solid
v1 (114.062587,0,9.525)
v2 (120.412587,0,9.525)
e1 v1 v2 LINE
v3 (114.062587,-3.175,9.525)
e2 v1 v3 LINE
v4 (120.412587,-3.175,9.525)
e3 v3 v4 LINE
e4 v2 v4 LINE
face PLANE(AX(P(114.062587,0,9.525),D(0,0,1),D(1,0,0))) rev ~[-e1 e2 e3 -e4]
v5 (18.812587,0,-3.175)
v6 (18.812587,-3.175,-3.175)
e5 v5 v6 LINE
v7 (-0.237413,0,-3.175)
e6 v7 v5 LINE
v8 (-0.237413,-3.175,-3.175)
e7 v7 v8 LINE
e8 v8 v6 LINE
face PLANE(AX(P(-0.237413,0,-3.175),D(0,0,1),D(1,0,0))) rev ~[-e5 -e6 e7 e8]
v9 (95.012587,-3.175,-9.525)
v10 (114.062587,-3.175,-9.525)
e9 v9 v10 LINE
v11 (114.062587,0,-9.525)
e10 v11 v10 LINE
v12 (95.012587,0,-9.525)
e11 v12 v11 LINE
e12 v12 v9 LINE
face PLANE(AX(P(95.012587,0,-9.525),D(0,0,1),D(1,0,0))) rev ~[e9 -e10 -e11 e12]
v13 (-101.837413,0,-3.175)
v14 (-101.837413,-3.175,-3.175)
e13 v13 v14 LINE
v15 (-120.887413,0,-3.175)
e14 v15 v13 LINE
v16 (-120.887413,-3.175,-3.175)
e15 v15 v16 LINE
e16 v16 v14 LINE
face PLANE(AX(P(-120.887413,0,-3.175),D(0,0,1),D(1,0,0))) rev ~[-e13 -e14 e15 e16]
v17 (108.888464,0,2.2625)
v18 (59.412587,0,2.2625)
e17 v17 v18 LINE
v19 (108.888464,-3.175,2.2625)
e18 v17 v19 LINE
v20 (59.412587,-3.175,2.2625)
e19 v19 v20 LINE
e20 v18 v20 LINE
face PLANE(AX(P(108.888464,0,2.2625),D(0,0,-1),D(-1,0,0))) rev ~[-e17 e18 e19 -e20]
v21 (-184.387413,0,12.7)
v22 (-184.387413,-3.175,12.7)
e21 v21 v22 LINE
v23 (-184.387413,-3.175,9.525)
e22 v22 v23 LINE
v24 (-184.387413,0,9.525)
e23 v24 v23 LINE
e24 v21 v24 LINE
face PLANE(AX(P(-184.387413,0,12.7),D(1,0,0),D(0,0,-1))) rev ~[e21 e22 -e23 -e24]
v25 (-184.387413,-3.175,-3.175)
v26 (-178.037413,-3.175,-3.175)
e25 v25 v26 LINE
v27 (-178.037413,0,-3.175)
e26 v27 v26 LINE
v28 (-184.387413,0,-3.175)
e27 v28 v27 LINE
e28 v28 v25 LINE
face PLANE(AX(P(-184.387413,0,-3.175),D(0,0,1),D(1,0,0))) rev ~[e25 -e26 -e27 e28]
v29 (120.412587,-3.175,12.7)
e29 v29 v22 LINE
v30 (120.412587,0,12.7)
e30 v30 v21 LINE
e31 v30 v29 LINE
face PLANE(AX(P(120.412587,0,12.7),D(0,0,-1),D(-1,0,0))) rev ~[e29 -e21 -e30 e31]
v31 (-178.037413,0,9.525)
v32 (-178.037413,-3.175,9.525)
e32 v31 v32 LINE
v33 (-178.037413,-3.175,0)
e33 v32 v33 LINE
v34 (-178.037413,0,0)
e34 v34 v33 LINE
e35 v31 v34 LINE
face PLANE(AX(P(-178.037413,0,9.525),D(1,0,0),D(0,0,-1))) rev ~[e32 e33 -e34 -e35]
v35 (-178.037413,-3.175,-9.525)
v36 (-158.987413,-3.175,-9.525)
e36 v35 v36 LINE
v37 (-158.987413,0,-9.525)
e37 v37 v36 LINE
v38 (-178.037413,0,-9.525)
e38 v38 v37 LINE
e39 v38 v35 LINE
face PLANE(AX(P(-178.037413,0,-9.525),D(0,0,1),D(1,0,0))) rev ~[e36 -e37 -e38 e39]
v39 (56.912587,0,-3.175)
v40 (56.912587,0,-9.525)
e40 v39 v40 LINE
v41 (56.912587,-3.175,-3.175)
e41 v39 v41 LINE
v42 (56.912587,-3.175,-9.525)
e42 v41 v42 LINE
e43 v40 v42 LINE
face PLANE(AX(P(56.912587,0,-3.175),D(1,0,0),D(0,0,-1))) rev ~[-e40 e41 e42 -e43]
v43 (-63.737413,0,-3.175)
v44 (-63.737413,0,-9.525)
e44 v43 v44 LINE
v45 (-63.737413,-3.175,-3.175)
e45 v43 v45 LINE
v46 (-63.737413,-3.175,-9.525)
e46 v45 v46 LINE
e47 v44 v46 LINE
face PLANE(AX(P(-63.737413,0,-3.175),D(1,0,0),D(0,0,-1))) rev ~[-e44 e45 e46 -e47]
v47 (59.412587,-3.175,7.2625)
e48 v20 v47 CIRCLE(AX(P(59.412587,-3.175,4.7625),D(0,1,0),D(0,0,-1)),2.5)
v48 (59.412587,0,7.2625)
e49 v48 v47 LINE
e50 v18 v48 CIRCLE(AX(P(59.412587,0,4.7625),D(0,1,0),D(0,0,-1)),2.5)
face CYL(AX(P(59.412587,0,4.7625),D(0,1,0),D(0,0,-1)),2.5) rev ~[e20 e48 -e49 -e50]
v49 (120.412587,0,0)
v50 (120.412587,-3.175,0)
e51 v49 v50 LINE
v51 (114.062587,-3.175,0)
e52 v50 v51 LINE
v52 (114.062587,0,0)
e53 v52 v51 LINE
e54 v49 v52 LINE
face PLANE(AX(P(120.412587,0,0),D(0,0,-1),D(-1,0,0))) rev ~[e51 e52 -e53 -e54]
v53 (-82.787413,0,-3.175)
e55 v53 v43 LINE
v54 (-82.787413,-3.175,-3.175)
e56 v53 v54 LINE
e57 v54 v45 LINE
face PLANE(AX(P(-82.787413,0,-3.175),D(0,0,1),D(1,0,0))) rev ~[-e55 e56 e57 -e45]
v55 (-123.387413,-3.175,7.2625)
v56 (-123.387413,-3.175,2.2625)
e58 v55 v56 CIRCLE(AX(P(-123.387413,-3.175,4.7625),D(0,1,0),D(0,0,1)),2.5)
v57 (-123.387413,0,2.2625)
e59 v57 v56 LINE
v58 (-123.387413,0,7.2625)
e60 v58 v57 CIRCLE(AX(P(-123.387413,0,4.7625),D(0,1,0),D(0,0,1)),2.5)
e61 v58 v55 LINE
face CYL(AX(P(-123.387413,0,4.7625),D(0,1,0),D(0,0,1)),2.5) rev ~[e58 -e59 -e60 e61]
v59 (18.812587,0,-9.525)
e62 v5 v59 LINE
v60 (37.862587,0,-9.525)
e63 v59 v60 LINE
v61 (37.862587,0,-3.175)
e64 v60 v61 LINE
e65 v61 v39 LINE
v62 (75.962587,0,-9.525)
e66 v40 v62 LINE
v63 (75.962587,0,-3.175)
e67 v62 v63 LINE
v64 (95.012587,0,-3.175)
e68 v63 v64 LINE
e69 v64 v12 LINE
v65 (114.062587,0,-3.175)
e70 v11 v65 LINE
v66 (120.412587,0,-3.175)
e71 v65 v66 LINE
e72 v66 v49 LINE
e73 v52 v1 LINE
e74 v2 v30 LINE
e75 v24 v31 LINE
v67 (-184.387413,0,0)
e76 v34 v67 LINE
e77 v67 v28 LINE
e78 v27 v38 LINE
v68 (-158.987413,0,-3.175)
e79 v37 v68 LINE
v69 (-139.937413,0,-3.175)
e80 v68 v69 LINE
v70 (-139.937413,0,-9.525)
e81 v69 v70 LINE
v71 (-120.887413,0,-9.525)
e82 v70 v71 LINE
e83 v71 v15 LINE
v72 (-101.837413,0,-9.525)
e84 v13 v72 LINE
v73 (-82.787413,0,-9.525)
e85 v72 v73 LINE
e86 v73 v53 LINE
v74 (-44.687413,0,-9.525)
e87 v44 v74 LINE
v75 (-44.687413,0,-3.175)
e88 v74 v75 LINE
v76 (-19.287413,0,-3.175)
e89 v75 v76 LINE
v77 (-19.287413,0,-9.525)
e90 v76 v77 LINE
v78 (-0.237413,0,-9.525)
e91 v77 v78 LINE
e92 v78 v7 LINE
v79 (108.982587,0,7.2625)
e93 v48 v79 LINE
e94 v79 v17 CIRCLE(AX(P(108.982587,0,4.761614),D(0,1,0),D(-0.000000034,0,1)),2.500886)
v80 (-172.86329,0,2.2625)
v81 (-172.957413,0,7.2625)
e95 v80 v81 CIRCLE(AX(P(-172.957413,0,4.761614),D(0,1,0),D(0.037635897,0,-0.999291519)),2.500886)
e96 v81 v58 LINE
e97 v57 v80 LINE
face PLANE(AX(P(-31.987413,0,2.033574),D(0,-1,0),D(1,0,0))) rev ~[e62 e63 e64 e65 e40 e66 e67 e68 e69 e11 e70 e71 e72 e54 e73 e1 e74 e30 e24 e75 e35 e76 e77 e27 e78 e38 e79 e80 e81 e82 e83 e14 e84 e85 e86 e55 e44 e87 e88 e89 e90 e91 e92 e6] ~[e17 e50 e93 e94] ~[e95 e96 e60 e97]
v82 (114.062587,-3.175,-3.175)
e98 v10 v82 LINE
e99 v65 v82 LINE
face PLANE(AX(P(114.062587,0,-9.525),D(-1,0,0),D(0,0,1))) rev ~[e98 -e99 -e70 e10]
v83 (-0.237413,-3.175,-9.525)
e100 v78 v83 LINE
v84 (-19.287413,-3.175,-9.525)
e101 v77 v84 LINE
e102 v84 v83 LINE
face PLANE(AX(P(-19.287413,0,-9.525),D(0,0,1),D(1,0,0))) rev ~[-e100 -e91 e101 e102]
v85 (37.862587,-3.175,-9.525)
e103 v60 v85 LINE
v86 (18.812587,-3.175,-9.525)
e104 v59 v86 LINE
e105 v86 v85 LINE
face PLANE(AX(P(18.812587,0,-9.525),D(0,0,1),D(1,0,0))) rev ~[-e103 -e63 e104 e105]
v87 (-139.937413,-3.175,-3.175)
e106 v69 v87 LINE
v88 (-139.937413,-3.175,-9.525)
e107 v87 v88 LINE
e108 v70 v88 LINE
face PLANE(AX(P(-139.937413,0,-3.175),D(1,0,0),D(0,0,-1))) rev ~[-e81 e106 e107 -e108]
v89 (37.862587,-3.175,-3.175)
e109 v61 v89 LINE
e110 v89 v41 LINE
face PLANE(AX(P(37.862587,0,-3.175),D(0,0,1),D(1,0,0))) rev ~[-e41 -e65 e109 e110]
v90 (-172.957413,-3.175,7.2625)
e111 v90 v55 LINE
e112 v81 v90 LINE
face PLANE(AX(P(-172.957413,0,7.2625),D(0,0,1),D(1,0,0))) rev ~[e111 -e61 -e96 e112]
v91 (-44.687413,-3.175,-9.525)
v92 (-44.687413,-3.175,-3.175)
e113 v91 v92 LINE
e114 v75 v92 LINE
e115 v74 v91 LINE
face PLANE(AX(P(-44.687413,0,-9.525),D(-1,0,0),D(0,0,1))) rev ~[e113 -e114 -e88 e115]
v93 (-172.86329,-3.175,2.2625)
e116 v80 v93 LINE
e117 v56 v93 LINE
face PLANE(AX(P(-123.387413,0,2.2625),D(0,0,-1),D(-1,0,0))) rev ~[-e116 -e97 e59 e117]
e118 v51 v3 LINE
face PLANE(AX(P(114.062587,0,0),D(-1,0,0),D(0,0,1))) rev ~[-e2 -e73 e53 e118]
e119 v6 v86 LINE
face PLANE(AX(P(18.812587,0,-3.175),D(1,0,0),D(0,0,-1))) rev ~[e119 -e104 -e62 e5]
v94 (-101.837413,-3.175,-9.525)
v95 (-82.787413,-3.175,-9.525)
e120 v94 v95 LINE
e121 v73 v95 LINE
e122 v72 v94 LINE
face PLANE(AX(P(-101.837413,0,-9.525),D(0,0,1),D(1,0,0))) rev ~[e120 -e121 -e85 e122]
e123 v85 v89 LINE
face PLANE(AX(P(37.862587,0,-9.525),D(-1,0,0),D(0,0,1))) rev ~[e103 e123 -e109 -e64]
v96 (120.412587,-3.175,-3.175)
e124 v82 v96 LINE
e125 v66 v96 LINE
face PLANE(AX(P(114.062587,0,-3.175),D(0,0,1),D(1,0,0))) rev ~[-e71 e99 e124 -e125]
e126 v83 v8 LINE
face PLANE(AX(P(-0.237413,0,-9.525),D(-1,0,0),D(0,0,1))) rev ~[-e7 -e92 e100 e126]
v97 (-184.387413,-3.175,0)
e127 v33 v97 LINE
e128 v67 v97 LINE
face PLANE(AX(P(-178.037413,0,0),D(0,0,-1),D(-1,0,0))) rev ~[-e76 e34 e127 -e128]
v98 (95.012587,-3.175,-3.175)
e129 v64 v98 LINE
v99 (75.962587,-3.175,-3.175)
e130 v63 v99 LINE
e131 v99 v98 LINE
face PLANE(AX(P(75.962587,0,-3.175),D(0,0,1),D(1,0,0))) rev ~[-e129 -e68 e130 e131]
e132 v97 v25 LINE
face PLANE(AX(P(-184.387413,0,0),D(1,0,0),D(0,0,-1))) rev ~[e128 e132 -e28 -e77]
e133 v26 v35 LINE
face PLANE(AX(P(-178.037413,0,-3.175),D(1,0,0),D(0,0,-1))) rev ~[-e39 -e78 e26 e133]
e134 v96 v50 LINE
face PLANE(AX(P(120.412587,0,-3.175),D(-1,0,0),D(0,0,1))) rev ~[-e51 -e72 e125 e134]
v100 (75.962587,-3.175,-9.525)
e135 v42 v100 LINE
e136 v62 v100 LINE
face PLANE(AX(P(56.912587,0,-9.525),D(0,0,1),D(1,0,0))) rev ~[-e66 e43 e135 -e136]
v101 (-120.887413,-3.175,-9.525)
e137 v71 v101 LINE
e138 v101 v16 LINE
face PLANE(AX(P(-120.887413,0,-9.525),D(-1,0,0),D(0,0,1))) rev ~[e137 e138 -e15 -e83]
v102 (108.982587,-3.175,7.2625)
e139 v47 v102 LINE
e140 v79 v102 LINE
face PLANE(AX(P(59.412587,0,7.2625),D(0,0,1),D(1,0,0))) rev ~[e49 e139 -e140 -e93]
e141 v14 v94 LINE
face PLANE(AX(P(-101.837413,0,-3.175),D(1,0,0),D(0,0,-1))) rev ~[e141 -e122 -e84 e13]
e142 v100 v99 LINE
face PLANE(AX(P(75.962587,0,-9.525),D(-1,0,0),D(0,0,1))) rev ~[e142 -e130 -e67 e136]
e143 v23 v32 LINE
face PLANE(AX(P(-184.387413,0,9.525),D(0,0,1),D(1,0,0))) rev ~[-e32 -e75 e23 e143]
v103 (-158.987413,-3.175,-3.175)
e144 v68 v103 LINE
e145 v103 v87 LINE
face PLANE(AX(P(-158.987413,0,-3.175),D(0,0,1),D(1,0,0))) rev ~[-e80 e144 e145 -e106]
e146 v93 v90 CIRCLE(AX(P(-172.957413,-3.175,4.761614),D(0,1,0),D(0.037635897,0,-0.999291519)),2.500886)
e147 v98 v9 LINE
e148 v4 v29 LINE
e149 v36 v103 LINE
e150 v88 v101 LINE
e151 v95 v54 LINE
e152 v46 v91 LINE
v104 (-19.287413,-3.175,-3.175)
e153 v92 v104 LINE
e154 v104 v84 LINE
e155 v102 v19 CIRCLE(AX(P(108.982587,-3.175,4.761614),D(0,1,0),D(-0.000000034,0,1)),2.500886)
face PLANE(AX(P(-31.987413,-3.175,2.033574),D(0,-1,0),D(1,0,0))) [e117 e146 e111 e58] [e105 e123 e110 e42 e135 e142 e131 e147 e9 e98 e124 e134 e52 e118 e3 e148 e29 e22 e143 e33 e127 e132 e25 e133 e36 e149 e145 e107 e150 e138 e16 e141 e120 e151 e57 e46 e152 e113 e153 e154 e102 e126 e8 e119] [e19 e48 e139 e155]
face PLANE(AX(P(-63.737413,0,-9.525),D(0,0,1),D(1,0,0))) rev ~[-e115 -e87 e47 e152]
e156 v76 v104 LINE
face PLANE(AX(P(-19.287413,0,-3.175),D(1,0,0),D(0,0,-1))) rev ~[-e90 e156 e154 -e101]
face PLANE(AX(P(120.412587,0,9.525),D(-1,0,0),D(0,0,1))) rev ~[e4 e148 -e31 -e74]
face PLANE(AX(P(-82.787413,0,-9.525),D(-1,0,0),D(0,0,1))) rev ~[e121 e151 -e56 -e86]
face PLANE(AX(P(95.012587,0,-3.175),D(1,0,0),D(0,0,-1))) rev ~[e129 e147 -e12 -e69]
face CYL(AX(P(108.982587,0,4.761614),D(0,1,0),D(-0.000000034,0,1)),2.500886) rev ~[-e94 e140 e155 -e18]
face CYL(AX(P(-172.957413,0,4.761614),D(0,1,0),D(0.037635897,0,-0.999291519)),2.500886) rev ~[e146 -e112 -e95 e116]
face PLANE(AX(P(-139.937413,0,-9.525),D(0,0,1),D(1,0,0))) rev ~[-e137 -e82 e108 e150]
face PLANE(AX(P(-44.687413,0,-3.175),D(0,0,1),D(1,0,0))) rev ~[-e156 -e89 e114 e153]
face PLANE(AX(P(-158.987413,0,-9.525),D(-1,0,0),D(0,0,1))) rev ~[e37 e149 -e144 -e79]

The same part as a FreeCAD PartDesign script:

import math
import FreeCAD as App
import Part
import Sketcher
Q = App.Units.Quantity


def add_polygon(sketch, points):
    """Adds a closed chain of lines whose ends are joined by coincident constraints."""
    first, n = sketch.GeometryCount, len(points)
    for a, b in zip(points, points[1:] + points[:1]):
        sketch.addGeometry(Part.LineSegment(App.Vector(*a, 0), App.Vector(*b, 0)), False)
    for i in range(n):
        sketch.addConstraint(Sketcher.Constraint("Coincident", first + i, 2, first + (i + 1) % n, 1))

doc = App.newDocument("Part")
body = doc.addObject("PartDesign::Body", "Body")

# Sketch on XZ plane
sketch1 = body.newObject("Sketcher::SketchObject", "Sketch")
sketch1.AttachmentSupport = (doc.getObject("XZ_Plane"), [""])
sketch1.MapMode = "FlatFace"
add_polygon(sketch1, [(-184.4, 12.7), (-184.4, 9.5), (-178, 9.5), (-178, 0), (-184.4, 0), (-184.4, -3.2), (-178, -3.2), (-178, -9.5), (-159, -9.5), (-159, -3.2), (-139.9, -3.2), (-139.9, -9.5), (-120.9, -9.5), (-120.9, -3.2), (-101.8, -3.2), (-101.8, -9.5), (-82.8, -9.5), (-82.8, -3.2), (-63.7, -3.2), (-63.7, -9.5), (-44.7, -9.5), (-44.7, -3.2), (-19.3, -3.2), (-19.3, -9.5), (-0.2, -9.5), (-0.2, -3.2), (18.8, -3.2), (18.8, -9.5), (37.9, -9.5), (37.9, -3.2), (56.9, -3.2), (56.9, -9.5), (76, -9.5), (76, -3.2), (95, -3.2), (95, -9.5), (114.1, -9.5), (114.1, -3.2), (120.4, -3.2), (120.4, 0), (114.1, 0), (114.1, 9.5), (120.4, 9.5), (120.4, 12.7)])  # lines 0-43
sketch1.addGeometry(Part.LineSegment(App.Vector(108.9, 2.3, 0), App.Vector(59.4, 2.3, 0)), False)  # 44
sketch1.addGeometry(Part.ArcOfCircle(Part.Circle(App.Vector(59.4, 4.8, 0), App.Vector(0, 0, 1), 2.5), math.radians(90), math.radians(270)), False)  # 45
sketch1.addGeometry(Part.LineSegment(App.Vector(59.4, 7.3, 0), App.Vector(109, 7.3, 0)), False)  # 46
sketch1.addGeometry(Part.ArcOfCircle(Part.Circle(App.Vector(109, 4.8, 0), App.Vector(0, 0, 1), 2.5), math.radians(-92), math.radians(90)), False)  # 47
sketch1.addGeometry(Part.ArcOfCircle(Part.Circle(App.Vector(-173, 4.8, 0), App.Vector(0, 0, 1), 2.5), math.radians(90), math.radians(272)), False)  # 48
sketch1.addGeometry(Part.LineSegment(App.Vector(-173, 7.3, 0), App.Vector(-123.4, 7.3, 0)), False)  # 49
sketch1.addGeometry(Part.ArcOfCircle(Part.Circle(App.Vector(-123.4, 4.8, 0), App.Vector(0, 0, 1), 2.5), math.radians(-90), math.radians(90)), False)  # 50
sketch1.addGeometry(Part.LineSegment(App.Vector(-123.4, 2.3, 0), App.Vector(-172.9, 2.3, 0)), False)  # 51
sketch1.addConstraint(Sketcher.Constraint("Tangent", 44, 2, 45, 2))
sketch1.addConstraint(Sketcher.Constraint("Tangent", 45, 1, 46, 1))
sketch1.addConstraint(Sketcher.Constraint("Tangent", 46, 2, 47, 2))
sketch1.addConstraint(Sketcher.Constraint("Coincident", 47, 1, 44, 1))
sketch1.addConstraint(Sketcher.Constraint("Tangent", 48, 1, 49, 1))
sketch1.addConstraint(Sketcher.Constraint("Tangent", 49, 2, 50, 2))
sketch1.addConstraint(Sketcher.Constraint("Tangent", 50, 1, 51, 1))
sketch1.addConstraint(Sketcher.Constraint("Coincident", 51, 2, 48, 2))
sketch1.addConstraint(Sketcher.Constraint("Vertical", 0))
sketch1.addConstraint(Sketcher.Constraint("Horizontal", 1))
sketch1.addConstraint(Sketcher.Constraint("Vertical", 2))
sketch1.addConstraint(Sketcher.Constraint("Horizontal", 3))
sketch1.addConstraint(Sketcher.Constraint("Vertical", 4))
sketch1.addConstraint(Sketcher.Constraint("Horizontal", 5))
sketch1.addConstraint(Sketcher.Constraint("Vertical", 6))
sketch1.addConstraint(Sketcher.Constraint("Horizontal", 7))
sketch1.addConstraint(Sketcher.Constraint("Vertical", 8))
sketch1.addConstraint(Sketcher.Constraint("Horizontal", 9))
sketch1.addConstraint(Sketcher.Constraint("Vertical", 10))
sketch1.addConstraint(Sketcher.Constraint("Horizontal", 11))
sketch1.addConstraint(Sketcher.Constraint("Vertical", 12))
sketch1.addConstraint(Sketcher.Constraint("Horizontal", 13))
sketch1.addConstraint(Sketcher.Constraint("Vertical", 14))
sketch1.addConstraint(Sketcher.Constraint("Horizontal", 15))
sketch1.addConstraint(Sketcher.Constraint("Vertical", 16))
sketch1.addConstraint(Sketcher.Constraint("Horizontal", 17))
sketch1.addConstraint(Sketcher.Constraint("Vertical", 18))
sketch1.addConstraint(Sketcher.Constraint("Horizontal", 19))
sketch1.addConstraint(Sketcher.Constraint("Vertical", 20))
sketch1.addConstraint(Sketcher.Constraint("Horizontal", 21))
sketch1.addConstraint(Sketcher.Constraint("Vertical", 22))
sketch1.addConstraint(Sketcher.Constraint("Horizontal", 23))
sketch1.addConstraint(Sketcher.Constraint("Vertical", 24))
sketch1.addConstraint(Sketcher.Constraint("Horizontal", 25))
sketch1.addConstraint(Sketcher.Constraint("Vertical", 26))
sketch1.addConstraint(Sketcher.Constraint("Horizontal", 27))
sketch1.addConstraint(Sketcher.Constraint("Vertical", 28))
sketch1.addConstraint(Sketcher.Constraint("Horizontal", 29))
sketch1.addConstraint(Sketcher.Constraint("Vertical", 30))
sketch1.addConstraint(Sketcher.Constraint("Horizontal", 31))
sketch1.addConstraint(Sketcher.Constraint("Vertical", 32))
sketch1.addConstraint(Sketcher.Constraint("Horizontal", 33))
sketch1.addConstraint(Sketcher.Constraint("Vertical", 34))
sketch1.addConstraint(Sketcher.Constraint("Horizontal", 35))
sketch1.addConstraint(Sketcher.Constraint("Vertical", 36))
sketch1.addConstraint(Sketcher.Constraint("Horizontal", 37))
sketch1.addConstraint(Sketcher.Constraint("Vertical", 38))
sketch1.addConstraint(Sketcher.Constraint("Horizontal", 39))
sketch1.addConstraint(Sketcher.Constraint("Vertical", 40))
sketch1.addConstraint(Sketcher.Constraint("Horizontal", 41))
sketch1.addConstraint(Sketcher.Constraint("Vertical", 42))
sketch1.addConstraint(Sketcher.Constraint("Horizontal", 43))
sketch1.addConstraint(Sketcher.Constraint("Horizontal", 44))
sketch1.addConstraint(Sketcher.Constraint("Horizontal", 46))
sketch1.addConstraint(Sketcher.Constraint("Horizontal", 49))
sketch1.addConstraint(Sketcher.Constraint("Horizontal", 51))
sketch1.addConstraint(Sketcher.Constraint("Equal", 47, 48))
sketch1.addConstraint(Sketcher.Constraint("Equal", 45, 50))
sketch1.addConstraint(Sketcher.Constraint("Symmetric", 1, 2, 6, 2, -1))
sketch1.addConstraint(Sketcher.Constraint("Symmetric", 35, 2, 40, 2, -1))
sketch1.addConstraint(Sketcher.Constraint("PointOnObject", 2, 2, -1))
sketch1.addConstraint(Sketcher.Constraint("PointOnObject", 38, 2, -1))
sketch1.addConstraint(Sketcher.Constraint("Horizontal", 47, 3, 48, 3))
sketch1.addConstraint(Sketcher.Constraint("Horizontal", 5, 2, 8, 2))
sketch1.addConstraint(Sketcher.Constraint("Horizontal", 7, 2, 10, 2))
sketch1.addConstraint(Sketcher.Constraint("Horizontal", 9, 2, 12, 2))
sketch1.addConstraint(Sketcher.Constraint("Horizontal", 11, 2, 14, 2))
sketch1.addConstraint(Sketcher.Constraint("Horizontal", 13, 2, 16, 2))
sketch1.addConstraint(Sketcher.Constraint("Horizontal", 15, 2, 18, 2))
sketch1.addConstraint(Sketcher.Constraint("Horizontal", 17, 2, 20, 2))
sketch1.addConstraint(Sketcher.Constraint("Horizontal", 19, 2, 22, 2))
sketch1.addConstraint(Sketcher.Constraint("Horizontal", 21, 2, 24, 2))
sketch1.addConstraint(Sketcher.Constraint("Horizontal", 23, 2, 26, 2))
sketch1.addConstraint(Sketcher.Constraint("Horizontal", 25, 2, 28, 2))
sketch1.addConstraint(Sketcher.Constraint("Horizontal", 27, 2, 30, 2))
sketch1.addConstraint(Sketcher.Constraint("Horizontal", 29, 2, 32, 2))
sketch1.addConstraint(Sketcher.Constraint("Horizontal", 31, 2, 34, 2))
sketch1.addConstraint(Sketcher.Constraint("Horizontal", 33, 2, 36, 2))
sketch1.addConstraint(Sketcher.Constraint("Vertical", 0, 2, 3, 2))
sketch1.addConstraint(Sketcher.Constraint("Vertical", 38, 2, 41, 2))
sketch1.addConstraint(Sketcher.Constraint("Equal", 7, 9))
sketch1.addConstraint(Sketcher.Constraint("Equal", 9, 11))
sketch1.addConstraint(Sketcher.Constraint("Equal", 11, 13))
sketch1.addConstraint(Sketcher.Constraint("Equal", 13, 15))
sketch1.addConstraint(Sketcher.Constraint("Equal", 15, 17))
sketch1.addConstraint(Sketcher.Constraint("Equal", 17, 19))
sketch1.addConstraint(Sketcher.Constraint("Equal", 19, 23))
sketch1.addConstraint(Sketcher.Constraint("Equal", 23, 25))
sketch1.addConstraint(Sketcher.Constraint("Equal", 25, 27))
sketch1.addConstraint(Sketcher.Constraint("Equal", 27, 29))
sketch1.addConstraint(Sketcher.Constraint("Equal", 29, 31))
sketch1.addConstraint(Sketcher.Constraint("Equal", 31, 33))
sketch1.addConstraint(Sketcher.Constraint("Equal", 33, 35))
sketch1.addConstraint(Sketcher.Constraint("Equal", 5, 37))
sketch1.addConstraint(Sketcher.Constraint("Equal", 46, 49))
sketch1.addConstraint(Sketcher.Constraint("Equal", 0, 4))
sketch1.addConstraint(Sketcher.Constraint("Equal", 41, 6))
sketch1.addConstraint(Sketcher.Constraint("DistanceX", 21, 1, 21, 2, Q("1 in")))
sketch1.addConstraint(Sketcher.Constraint("DistanceX", 43, 2, 43, 1, Q("12 in")))
sketch1.addConstraint(Sketcher.Constraint("DistanceX", 4, 2, 7, 2, Q("1 in")))
sketch1.addConstraint(Sketcher.Constraint("DistanceY", -1, 1, 42, 2, Q("0.5 in")))
sketch1.addConstraint(Sketcher.Constraint("DistanceX", 48, 3, 47, 3, Q("11.1 in")))
sketch1.addConstraint(Sketcher.Constraint("DistanceX", 1, 2, 48, 3, Q("0.2 in")))
sketch1.addConstraint(Sketcher.Constraint("Radius", 45, 2.5))
sketch1.addConstraint(Sketcher.Constraint("DistanceY", -1, 1, 45, 3, Q("0.1875 in")))
sketch1.addConstraint(Sketcher.Constraint("DistanceX", 46, 1, 46, 2, 49.57))
sketch1.addConstraint(Sketcher.Constraint("Radius", 47, 2.500886))
sketch1.addConstraint(Sketcher.Constraint("DistanceX", 51, 2, -1, 1, 172.86329))
pad1 = body.newObject("PartDesign::Pad", "Pad")
pad1.Profile = sketch1
pad1.Length = Q("0.125 in")

doc.recompute()
